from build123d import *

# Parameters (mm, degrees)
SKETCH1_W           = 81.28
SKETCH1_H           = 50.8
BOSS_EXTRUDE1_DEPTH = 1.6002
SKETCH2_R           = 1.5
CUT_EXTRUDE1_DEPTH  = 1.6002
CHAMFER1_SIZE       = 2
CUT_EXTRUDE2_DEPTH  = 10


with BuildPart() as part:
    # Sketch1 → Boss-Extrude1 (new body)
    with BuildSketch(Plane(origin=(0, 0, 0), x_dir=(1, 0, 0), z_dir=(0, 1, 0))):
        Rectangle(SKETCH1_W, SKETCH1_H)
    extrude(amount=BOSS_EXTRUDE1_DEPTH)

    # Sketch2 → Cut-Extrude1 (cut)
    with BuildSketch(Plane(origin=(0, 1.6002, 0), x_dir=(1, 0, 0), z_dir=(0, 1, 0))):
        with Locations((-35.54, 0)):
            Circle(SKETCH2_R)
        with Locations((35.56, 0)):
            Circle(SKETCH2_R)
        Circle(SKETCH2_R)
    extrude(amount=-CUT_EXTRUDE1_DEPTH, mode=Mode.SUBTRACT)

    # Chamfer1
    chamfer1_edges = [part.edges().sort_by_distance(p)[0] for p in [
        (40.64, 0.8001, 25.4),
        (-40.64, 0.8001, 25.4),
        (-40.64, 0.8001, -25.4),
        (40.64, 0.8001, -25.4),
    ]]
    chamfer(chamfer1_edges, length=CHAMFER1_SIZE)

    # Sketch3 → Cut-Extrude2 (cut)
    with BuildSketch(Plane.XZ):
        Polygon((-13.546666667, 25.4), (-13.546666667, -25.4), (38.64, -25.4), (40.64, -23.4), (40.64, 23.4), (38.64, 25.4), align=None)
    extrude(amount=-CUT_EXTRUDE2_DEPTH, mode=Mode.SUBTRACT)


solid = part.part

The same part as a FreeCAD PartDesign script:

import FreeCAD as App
import Part
import Sketcher


def edges_at(feature, points):
    """Names of the edges that pass closest to the given points."""
    edges = feature.Shape.Edges
    near = lambda p: min(range(len(edges)), key=lambda i: edges[i].distToShape(Part.Vertex(*p))[0])
    return sorted({f"Edge{near(p) + 1}" for p in points})

doc = App.newDocument("Part")
body = doc.addObject("PartDesign::Body", "Body")

# Sketch on XZ plane
sketch1 = body.newObject("Sketcher::SketchObject", "Sketch")
sketch1.AttachmentSupport = (doc.getObject("XZ_Plane"), [""])
sketch1.MapMode = "FlatFace"
sketch1.addGeometry([
    Part.LineSegment(App.Vector(-41, -25, 0), App.Vector(-41, 25, 0)),
    Part.LineSegment(App.Vector(-41, 25, 0), App.Vector(41, 25, 0)),
    Part.LineSegment(App.Vector(41, 25, 0), App.Vector(41, -25, 0)),
    Part.LineSegment(App.Vector(41, -25, 0), App.Vector(-41, -25, 0)),
], False)
sketch1.addConstraint([
    Sketcher.Constraint("Coincident", 0, 2, 1, 1),
    Sketcher.Constraint("Coincident", 1, 2, 2, 1),
    Sketcher.Constraint("Coincident", 2, 2, 3, 1),
    Sketcher.Constraint("Coincident", 3, 2, 0, 1),
    Sketcher.Constraint("Vertical", 0),
    Sketcher.Constraint("Horizontal", 1),
    Sketcher.Constraint("Vertical", 2),
    Sketcher.Constraint("Horizontal", 3),
    Sketcher.Constraint("Symmetric", 0, 2, 2, 2, -1, 1),
    Sketcher.Constraint("DistanceY", 0, 1, 0, 2, 50.8),
    Sketcher.Constraint("DistanceX", 1, 1, 1, 2, 81.28),
])
pad1 = body.newObject("PartDesign::Pad", "Pad")
pad1.Profile = sketch1
pad1.Length = 1.6002
pad1.Reversed = True

# Sketch on XZ plane
sketch2 = body.newObject("Sketcher::SketchObject", "Sketch001")
sketch2.AttachmentSupport = (doc.getObject("XZ_Plane"), [""])
sketch2.MapMode = "FlatFace"
sketch2.AttachmentOffset = App.Placement(App.Vector(0, 0, -1.6002), App.Rotation())
sketch2.addGeometry([
    Part.Circle(App.Vector(-35.5, 0, 0), App.Vector(0, 0, 1), 1.5),
    Part.Circle(App.Vector(35.6, 0, 0), App.Vector(0, 0, 1), 1.5),
    Part.Circle(App.Vector(0, 0, 0), App.Vector(0, 0, 1), 1.5),
], False)
sketch2.addConstraint([
    Sketcher.Constraint("Coincident", 2, 3, -1, 1),
    Sketcher.Constraint("Equal", 0, 1),
    Sketcher.Constraint("Equal", 1, 2),
    Sketcher.Constraint("PointOnObject", 0, 3, -1),
    Sketcher.Constraint("PointOnObject", 1, 3, -1),
    Sketcher.Constraint("Diameter", 0, 3.0),
    Sketcher.Constraint("DistanceX", 0, 3, 1, 3, 71.1),
    Sketcher.Constraint("DistanceX", 0, 3, -1, 1, 35.54),
])
pocket1 = body.newObject("PartDesign::Pocket", "Pocket")
pocket1.Profile = sketch2
pocket1.Length = 1.6002
pocket1.Reversed = True
doc.recompute()

chamfer = body.newObject("PartDesign::Chamfer", "Chamfer")
chamfer.Base = (pocket1, edges_at(pocket1, [
    (40.64, 0.8, 25.4),
    (-40.64, 0.8, 25.4),
    (-40.64, 0.8, -25.4),
    (40.64, 0.8, -25.4),
]))
chamfer.Size = 2

# Sketch on XZ plane
sketch3 = body.newObject("Sketcher::SketchObject", "Sketch002")
sketch3.AttachmentSupport = (doc.getObject("XZ_Plane"), [""])
sketch3.MapMode = "FlatFace"
sketch3.addGeometry([
    Part.LineSegment(App.Vector(-13.5, 25.4, 0), App.Vector(-13.5, -25.4, 0)),  # 0
    Part.LineSegment(App.Vector(-13.5, -25.4, 0), App.Vector(38.6, -25.4, 0)),  # 1
    Part.LineSegment(App.Vector(38.6, -25.4, 0), App.Vector(40.6, -23.4, 0)),  # 2
    Part.LineSegment(App.Vector(40.6, -23.4, 0), App.Vector(40.6, 23.4, 0)),  # 3
    Part.LineSegment(App.Vector(40.6, 23.4, 0), App.Vector(38.6, 25.4, 0)),  # 4
    Part.LineSegment(App.Vector(38.6, 25.4, 0), App.Vector(-13.5, 25.4, 0)),  # 5
], False)
sketch3.addConstraint([
    Sketcher.Constraint("Coincident", 0, 2, 1, 1),
    Sketcher.Constraint("Coincident", 1, 2, 2, 1),
    Sketcher.Constraint("Coincident", 2, 2, 3, 1),
    Sketcher.Constraint("Coincident", 3, 2, 4, 1),
    Sketcher.Constraint("Coincident", 4, 2, 5, 1),
    Sketcher.Constraint("Coincident", 5, 2, 0, 1),
    Sketcher.Constraint("Vertical", 0),
    Sketcher.Constraint("Horizontal", 1),
    Sketcher.Constraint("Vertical", 3),
    Sketcher.Constraint("Horizontal", 5),
    Sketcher.Constraint("Symmetric", 1, 2, 4, 2, -1),
    Sketcher.Constraint("Perpendicular", 2, 4),
    Sketcher.Constraint("Equal", 2, 4),
    Sketcher.Constraint("DistanceY", 0, 2, 0, 1, 50.8),
    Sketcher.Constraint("DistanceY", 3, 1, 3, 2, 46.8),
    Sketcher.Constraint("DistanceX", -1, 1, 1, 2, 38.64),
    Sketcher.Constraint("DistanceX", 1, 1, 1, 2, 52.186667),
])
pocket2 = body.newObject("PartDesign::Pocket", "Pocket001")
pocket2.Profile = sketch3
pocket2.Length = 10

doc.recompute()
